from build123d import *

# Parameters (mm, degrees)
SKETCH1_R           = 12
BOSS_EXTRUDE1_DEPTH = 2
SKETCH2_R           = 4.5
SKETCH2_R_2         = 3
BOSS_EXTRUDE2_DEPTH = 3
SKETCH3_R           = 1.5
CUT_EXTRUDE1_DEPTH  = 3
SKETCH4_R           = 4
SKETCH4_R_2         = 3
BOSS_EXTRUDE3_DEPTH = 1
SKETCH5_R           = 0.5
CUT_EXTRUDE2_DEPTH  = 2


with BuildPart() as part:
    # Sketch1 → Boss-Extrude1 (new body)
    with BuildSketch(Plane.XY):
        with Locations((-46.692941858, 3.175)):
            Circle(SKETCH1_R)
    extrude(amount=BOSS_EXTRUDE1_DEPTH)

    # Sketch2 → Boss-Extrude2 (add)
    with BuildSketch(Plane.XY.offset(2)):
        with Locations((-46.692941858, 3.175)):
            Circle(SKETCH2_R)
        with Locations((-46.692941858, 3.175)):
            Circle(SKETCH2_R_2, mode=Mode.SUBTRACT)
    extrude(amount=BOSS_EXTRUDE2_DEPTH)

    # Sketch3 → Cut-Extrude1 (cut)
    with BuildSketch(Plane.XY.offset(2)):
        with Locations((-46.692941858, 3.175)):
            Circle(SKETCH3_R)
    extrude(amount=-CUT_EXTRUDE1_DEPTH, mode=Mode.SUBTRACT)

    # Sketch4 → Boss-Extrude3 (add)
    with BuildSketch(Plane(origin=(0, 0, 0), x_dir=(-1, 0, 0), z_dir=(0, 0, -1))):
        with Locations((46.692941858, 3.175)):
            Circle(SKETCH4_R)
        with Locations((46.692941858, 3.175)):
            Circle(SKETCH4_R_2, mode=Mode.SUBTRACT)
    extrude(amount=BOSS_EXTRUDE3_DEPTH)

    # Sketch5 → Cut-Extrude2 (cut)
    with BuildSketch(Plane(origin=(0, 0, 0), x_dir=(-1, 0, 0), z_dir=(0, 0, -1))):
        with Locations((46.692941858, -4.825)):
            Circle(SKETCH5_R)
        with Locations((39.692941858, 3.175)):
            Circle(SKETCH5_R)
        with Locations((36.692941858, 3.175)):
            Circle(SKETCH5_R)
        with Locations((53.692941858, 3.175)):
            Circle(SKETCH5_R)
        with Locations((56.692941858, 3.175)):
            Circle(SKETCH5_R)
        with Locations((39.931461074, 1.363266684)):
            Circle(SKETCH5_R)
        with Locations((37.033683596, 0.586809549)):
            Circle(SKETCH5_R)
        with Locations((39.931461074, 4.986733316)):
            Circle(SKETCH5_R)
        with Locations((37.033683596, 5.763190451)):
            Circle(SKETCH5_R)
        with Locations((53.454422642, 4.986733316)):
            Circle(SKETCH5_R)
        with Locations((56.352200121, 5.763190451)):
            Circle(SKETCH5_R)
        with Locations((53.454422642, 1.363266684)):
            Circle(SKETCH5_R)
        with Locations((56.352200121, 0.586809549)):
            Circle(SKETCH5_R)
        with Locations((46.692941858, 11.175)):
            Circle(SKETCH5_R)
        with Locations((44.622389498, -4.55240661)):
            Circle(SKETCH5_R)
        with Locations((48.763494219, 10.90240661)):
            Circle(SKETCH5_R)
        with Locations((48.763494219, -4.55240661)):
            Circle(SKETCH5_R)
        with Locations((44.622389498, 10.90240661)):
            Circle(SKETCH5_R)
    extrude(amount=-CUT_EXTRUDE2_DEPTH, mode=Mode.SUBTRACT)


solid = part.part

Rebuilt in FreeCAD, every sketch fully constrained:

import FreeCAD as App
import Part
import Sketcher

V = App.Vector
Q = App.Units.Quantity

doc = App.newDocument("Part")
body = doc.addObject("PartDesign::Body", "Body")

sketch1 = doc.addObject("Sketcher::SketchObject", "Sketch")
body.addObject(sketch1)
sketch1.AttachmentSupport = (doc.XY_Plane, [""])
sketch1.MapMode = "FlatFace"
sketch1.addGeometry(Part.Circle(V(-47, 3, 0), V(0, 0, 1), 12), False)
sketch1.addConstraint(Sketcher.Constraint("Diameter", 0, Q("24 mm")))
sketch1.addConstraint(Sketcher.Constraint("DistanceY", -1, 1, 0, 3, Q("3.175 mm")))
sketch1.addConstraint(Sketcher.Constraint("DistanceX", 0, 3, -1, 1, Q("46.692942 mm")))
pad1 = doc.addObject("PartDesign::Pad", "Pad")
body.addObject(pad1)
pad1.Profile = sketch1
pad1.Length = 2

sketch2 = doc.addObject("Sketcher::SketchObject", "Sketch001")
body.addObject(sketch2)
sketch2.AttachmentSupport = (doc.XY_Plane, [""])
sketch2.MapMode = "FlatFace"
sketch2.AttachmentOffset = App.Placement(V(0, 0, 2), App.Rotation())
sketch2.addGeometry(Part.Circle(V(-46.7, 3.2, 0), V(0, 0, 1), 4.5), False)
sketch2.addGeometry(Part.Circle(V(-46.7, 3.2, 0), V(0, 0, 1), 3), False)
sketch2.addConstraint(Sketcher.Constraint("Coincident", 1, 3, 0, 3))
sketch2.addConstraint(Sketcher.Constraint("Diameter", 0, Q("9 mm")))
sketch2.addConstraint(Sketcher.Constraint("Diameter", 1, Q("6 mm")))
sketch2.addConstraint(Sketcher.Constraint("DistanceY", -1, 1, 0, 3, Q("3.175 mm")))
sketch2.addConstraint(Sketcher.Constraint("DistanceX", 0, 3, -1, 1, Q("46.692942 mm")))
pad2 = doc.addObject("PartDesign::Pad", "Pad001")
body.addObject(pad2)
pad2.Profile = sketch2
pad2.Length = 3

sketch3 = doc.addObject("Sketcher::SketchObject", "Sketch002")
body.addObject(sketch3)
sketch3.AttachmentSupport = (doc.XY_Plane, [""])
sketch3.MapMode = "FlatFace"
sketch3.AttachmentOffset = App.Placement(V(0, 0, 2), App.Rotation())
sketch3.addGeometry(Part.Circle(V(-46.7, 3.2, 0), V(0, 0, 1), 1.5), False)
sketch3.addConstraint(Sketcher.Constraint("Diameter", 0, Q("3 mm")))
sketch3.addConstraint(Sketcher.Constraint("DistanceY", -1, 1, 0, 3, Q("3.175 mm")))
sketch3.addConstraint(Sketcher.Constraint("DistanceX", 0, 3, -1, 1, Q("46.692942 mm")))
pocket1 = doc.addObject("PartDesign::Pocket", "Pocket")
body.addObject(pocket1)
pocket1.Profile = sketch3
pocket1.Length = 3

sketch4 = doc.addObject("Sketcher::SketchObject", "Sketch003")
body.addObject(sketch4)
sketch4.AttachmentSupport = (doc.XY_Plane, [""])
sketch4.MapMode = "FlatFace"
sketch4.addGeometry(Part.Circle(V(-46.7, 3.2, 0), V(0, 0, 1), 4), False)
sketch4.addGeometry(Part.Circle(V(-46.7, 3.2, 0), V(0, 0, 1), 3), False)
sketch4.addConstraint(Sketcher.Constraint("Coincident", 1, 3, 0, 3))
sketch4.addConstraint(Sketcher.Constraint("Diameter", 0, Q("8 mm")))
sketch4.addConstraint(Sketcher.Constraint("Diameter", 1, Q("6 mm")))
sketch4.addConstraint(Sketcher.Constraint("DistanceY", -1, 1, 0, 3, Q("3.175 mm")))
sketch4.addConstraint(Sketcher.Constraint("DistanceX", 0, 3, -1, 1, Q("46.692942 mm")))
pad3 = doc.addObject("PartDesign::Pad", "Pad002")
body.addObject(pad3)
pad3.Profile = sketch4
pad3.Length = 1
pad3.Reversed = True

sketch5 = doc.addObject("Sketcher::SketchObject", "Sketch004")
body.addObject(sketch5)
sketch5.AttachmentSupport = (doc.XY_Plane, [""])
sketch5.MapMode = "FlatFace"
sketch5.addGeometry(Part.Circle(V(-46.7, -4.8, 0), V(0, 0, 1), 0.5), False)
sketch5.addGeometry(Part.Circle(V(-39.7, 3.2, 0), V(0, 0, 1), 0.5), False)
sketch5.addGeometry(Part.Circle(V(-36.7, 3.2, 0), V(0, 0, 1), 0.5), False)
sketch5.addGeometry(Part.Circle(V(-53.7, 3.2, 0), V(0, 0, 1), 0.5), False)
sketch5.addGeometry(Part.Circle(V(-56.7, 3.2, 0), V(0, 0, 1), 0.5), False)
sketch5.addGeometry(Part.Circle(V(-39.9, 1.4, 0), V(0, 0, 1), 0.5), False)
sketch5.addGeometry(Part.Circle(V(-37, 0.6, 0), V(0, 0, 1), 0.5), False)
sketch5.addGeometry(Part.Circle(V(-39.9, 5, 0), V(0, 0, 1), 0.5), False)
sketch5.addGeometry(Part.Circle(V(-37, 5.8, 0), V(0, 0, 1), 0.5), False)
sketch5.addGeometry(Part.Circle(V(-53.5, 5, 0), V(0, 0, 1), 0.5), False)
sketch5.addGeometry(Part.Circle(V(-56.4, 5.8, 0), V(0, 0, 1), 0.5), False)
sketch5.addGeometry(Part.Circle(V(-53.5, 1.4, 0), V(0, 0, 1), 0.5), False)
sketch5.addGeometry(Part.Circle(V(-56.4, 0.6, 0), V(0, 0, 1), 0.5), False)
sketch5.addGeometry(Part.Circle(V(-46.7, 11.2, 0), V(0, 0, 1), 0.5), False)
sketch5.addGeometry(Part.Circle(V(-44.6, -4.6, 0), V(0, 0, 1), 0.5), False)
sketch5.addGeometry(Part.Circle(V(-48.8, 10.9, 0), V(0, 0, 1), 0.5), False)
sketch5.addGeometry(Part.Circle(V(-48.8, -4.6, 0), V(0, 0, 1), 0.5), False)
sketch5.addGeometry(Part.Circle(V(-44.6, 10.9, 0), V(0, 0, 1), 0.5), False)
sketch5.addConstraint(Sketcher.Constraint("Equal", 0, 1))
sketch5.addConstraint(Sketcher.Constraint("Equal", 1, 2))
sketch5.addConstraint(Sketcher.Constraint("Equal", 2, 3))
sketch5.addConstraint(Sketcher.Constraint("Equal", 3, 4))
sketch5.addConstraint(Sketcher.Constraint("Equal", 4, 5))
sketch5.addConstraint(Sketcher.Constraint("Equal", 5, 6))
sketch5.addConstraint(Sketcher.Constraint("Equal", 6, 7))
sketch5.addConstraint(Sketcher.Constraint("Equal", 7, 8))
sketch5.addConstraint(Sketcher.Constraint("Equal", 8, 9))
sketch5.addConstraint(Sketcher.Constraint("Equal", 9, 10))
sketch5.addConstraint(Sketcher.Constraint("Equal", 10, 11))
sketch5.addConstraint(Sketcher.Constraint("Equal", 11, 12))
sketch5.addConstraint(Sketcher.Constraint("Equal", 12, 13))
sketch5.addConstraint(Sketcher.Constraint("Equal", 13, 14))
sketch5.addConstraint(Sketcher.Constraint("Equal", 14, 15))
sketch5.addConstraint(Sketcher.Constraint("Equal", 15, 16))
sketch5.addConstraint(Sketcher.Constraint("Equal", 16, 17))
sketch5.addConstraint(Sketcher.Constraint("Horizontal", 1, 3, 2, 3))
sketch5.addConstraint(Sketcher.Constraint("Horizontal", 2, 3, 3, 3))
sketch5.addConstraint(Sketcher.Constraint("Horizontal", 3, 3, 4, 3))
sketch5.addConstraint(Sketcher.Constraint("Horizontal", 7, 3, 9, 3))
sketch5.addConstraint(Sketcher.Constraint("Horizontal", 8, 3, 10, 3))
sketch5.addConstraint(Sketcher.Constraint("Horizontal", 5, 3, 11, 3))
sketch5.addConstraint(Sketcher.Constraint("Horizontal", 6, 3, 12, 3))
sketch5.addConstraint(Sketcher.Constraint("Horizontal", 14, 3, 16, 3))
sketch5.addConstraint(Sketcher.Constraint("Horizontal", 15, 3, 17, 3))
sketch5.addConstraint(Sketcher.Constraint("Vertical", 5, 3, 7, 3))
sketch5.addConstraint(Sketcher.Constraint("Vertical", 6, 3, 8, 3))
sketch5.addConstraint(Sketcher.Constraint("Vertical", 9, 3, 11, 3))
sketch5.addConstraint(Sketcher.Constraint("Vertical", 10, 3, 12, 3))
sketch5.addConstraint(Sketcher.Constraint("Vertical", 0, 3, 13, 3))
sketch5.addConstraint(Sketcher.Constraint("Vertical", 15, 3, 16, 3))
sketch5.addConstraint(Sketcher.Constraint("Vertical", 14, 3, 17, 3))
sketch5.addConstraint(Sketcher.Constraint("Diameter", 0, Q("1 mm")))
sketch5.addConstraint(Sketcher.Constraint("DistanceX", 0, 3, 1, 3, Q("7 mm")))
sketch5.addConstraint(Sketcher.Constraint("DistanceY", 0, 3, 1, 3, Q("8 mm")))
sketch5.addConstraint(Sketcher.Constraint("DistanceX", 1, 3, 2, 3, Q("3 mm")))
sketch5.addConstraint(Sketcher.Constraint("DistanceX", 3, 3, 0, 3, Q("7 mm")))
sketch5.addConstraint(Sketcher.Constraint("DistanceX", 4, 3, 3, 3, Q("3 mm")))
sketch5.addConstraint(Sketcher.Constraint("DistanceY", 1, 3, 13, 3, Q("8 mm")))
sketch5.addConstraint(Sketcher.Constraint("DistanceY", 0, 3, -1, 1, Q("4.825 mm")))
sketch5.addConstraint(Sketcher.Constraint("DistanceX", 10, 3, -1, 1, Q("56.3522 mm")))
sketch5.addConstraint(Sketcher.Constraint("DistanceX", 0, 3, -1, 1, Q("46.692942 mm")))
sketch5.addConstraint(Sketcher.Constraint("DistanceX", 5, 3, -1, 1, Q("39.931461 mm")))
sketch5.addConstraint(Sketcher.Constraint("DistanceY", -1, 1, 6, 3, Q("0.58681 mm")))
sketch5.addConstraint(Sketcher.Constraint("DistanceY", -1, 1, 8, 3, Q("5.76319 mm")))
sketch5.addConstraint(Sketcher.Constraint("DistanceX", 14, 3, -1, 1, Q("44.622389 mm")))
sketch5.addConstraint(Sketcher.Constraint("DistanceX", 6, 3, 2, 3, Q("0.340742 mm")))
sketch5.addConstraint(Sketcher.Constraint("DistanceX", 3, 3, 9, 3, Q("0.238519 mm")))
sketch5.addConstraint(Sketcher.Constraint("DistanceX", 9, 3, 15, 3, Q("4.690928 mm")))
sketch5.addConstraint(Sketcher.Constraint("DistanceY", -1, 1, 5, 3, Q("1.363267 mm")))
sketch5.addConstraint(Sketcher.Constraint("DistanceY", -1, 1, 7, 3, Q("4.986733 mm")))
sketch5.addConstraint(Sketcher.Constraint("DistanceY", 14, 3, -1, 1, Q("4.552407 mm")))
sketch5.addConstraint(Sketcher.Constraint("DistanceY", -1, 1, 15, 3, Q("10.902407 mm")))
pocket2 = doc.addObject("PartDesign::Pocket", "Pocket001")
body.addObject(pocket2)
pocket2.Profile = sketch5
pocket2.Length = 2
pocket2.Reversed = True

doc.recompute()
